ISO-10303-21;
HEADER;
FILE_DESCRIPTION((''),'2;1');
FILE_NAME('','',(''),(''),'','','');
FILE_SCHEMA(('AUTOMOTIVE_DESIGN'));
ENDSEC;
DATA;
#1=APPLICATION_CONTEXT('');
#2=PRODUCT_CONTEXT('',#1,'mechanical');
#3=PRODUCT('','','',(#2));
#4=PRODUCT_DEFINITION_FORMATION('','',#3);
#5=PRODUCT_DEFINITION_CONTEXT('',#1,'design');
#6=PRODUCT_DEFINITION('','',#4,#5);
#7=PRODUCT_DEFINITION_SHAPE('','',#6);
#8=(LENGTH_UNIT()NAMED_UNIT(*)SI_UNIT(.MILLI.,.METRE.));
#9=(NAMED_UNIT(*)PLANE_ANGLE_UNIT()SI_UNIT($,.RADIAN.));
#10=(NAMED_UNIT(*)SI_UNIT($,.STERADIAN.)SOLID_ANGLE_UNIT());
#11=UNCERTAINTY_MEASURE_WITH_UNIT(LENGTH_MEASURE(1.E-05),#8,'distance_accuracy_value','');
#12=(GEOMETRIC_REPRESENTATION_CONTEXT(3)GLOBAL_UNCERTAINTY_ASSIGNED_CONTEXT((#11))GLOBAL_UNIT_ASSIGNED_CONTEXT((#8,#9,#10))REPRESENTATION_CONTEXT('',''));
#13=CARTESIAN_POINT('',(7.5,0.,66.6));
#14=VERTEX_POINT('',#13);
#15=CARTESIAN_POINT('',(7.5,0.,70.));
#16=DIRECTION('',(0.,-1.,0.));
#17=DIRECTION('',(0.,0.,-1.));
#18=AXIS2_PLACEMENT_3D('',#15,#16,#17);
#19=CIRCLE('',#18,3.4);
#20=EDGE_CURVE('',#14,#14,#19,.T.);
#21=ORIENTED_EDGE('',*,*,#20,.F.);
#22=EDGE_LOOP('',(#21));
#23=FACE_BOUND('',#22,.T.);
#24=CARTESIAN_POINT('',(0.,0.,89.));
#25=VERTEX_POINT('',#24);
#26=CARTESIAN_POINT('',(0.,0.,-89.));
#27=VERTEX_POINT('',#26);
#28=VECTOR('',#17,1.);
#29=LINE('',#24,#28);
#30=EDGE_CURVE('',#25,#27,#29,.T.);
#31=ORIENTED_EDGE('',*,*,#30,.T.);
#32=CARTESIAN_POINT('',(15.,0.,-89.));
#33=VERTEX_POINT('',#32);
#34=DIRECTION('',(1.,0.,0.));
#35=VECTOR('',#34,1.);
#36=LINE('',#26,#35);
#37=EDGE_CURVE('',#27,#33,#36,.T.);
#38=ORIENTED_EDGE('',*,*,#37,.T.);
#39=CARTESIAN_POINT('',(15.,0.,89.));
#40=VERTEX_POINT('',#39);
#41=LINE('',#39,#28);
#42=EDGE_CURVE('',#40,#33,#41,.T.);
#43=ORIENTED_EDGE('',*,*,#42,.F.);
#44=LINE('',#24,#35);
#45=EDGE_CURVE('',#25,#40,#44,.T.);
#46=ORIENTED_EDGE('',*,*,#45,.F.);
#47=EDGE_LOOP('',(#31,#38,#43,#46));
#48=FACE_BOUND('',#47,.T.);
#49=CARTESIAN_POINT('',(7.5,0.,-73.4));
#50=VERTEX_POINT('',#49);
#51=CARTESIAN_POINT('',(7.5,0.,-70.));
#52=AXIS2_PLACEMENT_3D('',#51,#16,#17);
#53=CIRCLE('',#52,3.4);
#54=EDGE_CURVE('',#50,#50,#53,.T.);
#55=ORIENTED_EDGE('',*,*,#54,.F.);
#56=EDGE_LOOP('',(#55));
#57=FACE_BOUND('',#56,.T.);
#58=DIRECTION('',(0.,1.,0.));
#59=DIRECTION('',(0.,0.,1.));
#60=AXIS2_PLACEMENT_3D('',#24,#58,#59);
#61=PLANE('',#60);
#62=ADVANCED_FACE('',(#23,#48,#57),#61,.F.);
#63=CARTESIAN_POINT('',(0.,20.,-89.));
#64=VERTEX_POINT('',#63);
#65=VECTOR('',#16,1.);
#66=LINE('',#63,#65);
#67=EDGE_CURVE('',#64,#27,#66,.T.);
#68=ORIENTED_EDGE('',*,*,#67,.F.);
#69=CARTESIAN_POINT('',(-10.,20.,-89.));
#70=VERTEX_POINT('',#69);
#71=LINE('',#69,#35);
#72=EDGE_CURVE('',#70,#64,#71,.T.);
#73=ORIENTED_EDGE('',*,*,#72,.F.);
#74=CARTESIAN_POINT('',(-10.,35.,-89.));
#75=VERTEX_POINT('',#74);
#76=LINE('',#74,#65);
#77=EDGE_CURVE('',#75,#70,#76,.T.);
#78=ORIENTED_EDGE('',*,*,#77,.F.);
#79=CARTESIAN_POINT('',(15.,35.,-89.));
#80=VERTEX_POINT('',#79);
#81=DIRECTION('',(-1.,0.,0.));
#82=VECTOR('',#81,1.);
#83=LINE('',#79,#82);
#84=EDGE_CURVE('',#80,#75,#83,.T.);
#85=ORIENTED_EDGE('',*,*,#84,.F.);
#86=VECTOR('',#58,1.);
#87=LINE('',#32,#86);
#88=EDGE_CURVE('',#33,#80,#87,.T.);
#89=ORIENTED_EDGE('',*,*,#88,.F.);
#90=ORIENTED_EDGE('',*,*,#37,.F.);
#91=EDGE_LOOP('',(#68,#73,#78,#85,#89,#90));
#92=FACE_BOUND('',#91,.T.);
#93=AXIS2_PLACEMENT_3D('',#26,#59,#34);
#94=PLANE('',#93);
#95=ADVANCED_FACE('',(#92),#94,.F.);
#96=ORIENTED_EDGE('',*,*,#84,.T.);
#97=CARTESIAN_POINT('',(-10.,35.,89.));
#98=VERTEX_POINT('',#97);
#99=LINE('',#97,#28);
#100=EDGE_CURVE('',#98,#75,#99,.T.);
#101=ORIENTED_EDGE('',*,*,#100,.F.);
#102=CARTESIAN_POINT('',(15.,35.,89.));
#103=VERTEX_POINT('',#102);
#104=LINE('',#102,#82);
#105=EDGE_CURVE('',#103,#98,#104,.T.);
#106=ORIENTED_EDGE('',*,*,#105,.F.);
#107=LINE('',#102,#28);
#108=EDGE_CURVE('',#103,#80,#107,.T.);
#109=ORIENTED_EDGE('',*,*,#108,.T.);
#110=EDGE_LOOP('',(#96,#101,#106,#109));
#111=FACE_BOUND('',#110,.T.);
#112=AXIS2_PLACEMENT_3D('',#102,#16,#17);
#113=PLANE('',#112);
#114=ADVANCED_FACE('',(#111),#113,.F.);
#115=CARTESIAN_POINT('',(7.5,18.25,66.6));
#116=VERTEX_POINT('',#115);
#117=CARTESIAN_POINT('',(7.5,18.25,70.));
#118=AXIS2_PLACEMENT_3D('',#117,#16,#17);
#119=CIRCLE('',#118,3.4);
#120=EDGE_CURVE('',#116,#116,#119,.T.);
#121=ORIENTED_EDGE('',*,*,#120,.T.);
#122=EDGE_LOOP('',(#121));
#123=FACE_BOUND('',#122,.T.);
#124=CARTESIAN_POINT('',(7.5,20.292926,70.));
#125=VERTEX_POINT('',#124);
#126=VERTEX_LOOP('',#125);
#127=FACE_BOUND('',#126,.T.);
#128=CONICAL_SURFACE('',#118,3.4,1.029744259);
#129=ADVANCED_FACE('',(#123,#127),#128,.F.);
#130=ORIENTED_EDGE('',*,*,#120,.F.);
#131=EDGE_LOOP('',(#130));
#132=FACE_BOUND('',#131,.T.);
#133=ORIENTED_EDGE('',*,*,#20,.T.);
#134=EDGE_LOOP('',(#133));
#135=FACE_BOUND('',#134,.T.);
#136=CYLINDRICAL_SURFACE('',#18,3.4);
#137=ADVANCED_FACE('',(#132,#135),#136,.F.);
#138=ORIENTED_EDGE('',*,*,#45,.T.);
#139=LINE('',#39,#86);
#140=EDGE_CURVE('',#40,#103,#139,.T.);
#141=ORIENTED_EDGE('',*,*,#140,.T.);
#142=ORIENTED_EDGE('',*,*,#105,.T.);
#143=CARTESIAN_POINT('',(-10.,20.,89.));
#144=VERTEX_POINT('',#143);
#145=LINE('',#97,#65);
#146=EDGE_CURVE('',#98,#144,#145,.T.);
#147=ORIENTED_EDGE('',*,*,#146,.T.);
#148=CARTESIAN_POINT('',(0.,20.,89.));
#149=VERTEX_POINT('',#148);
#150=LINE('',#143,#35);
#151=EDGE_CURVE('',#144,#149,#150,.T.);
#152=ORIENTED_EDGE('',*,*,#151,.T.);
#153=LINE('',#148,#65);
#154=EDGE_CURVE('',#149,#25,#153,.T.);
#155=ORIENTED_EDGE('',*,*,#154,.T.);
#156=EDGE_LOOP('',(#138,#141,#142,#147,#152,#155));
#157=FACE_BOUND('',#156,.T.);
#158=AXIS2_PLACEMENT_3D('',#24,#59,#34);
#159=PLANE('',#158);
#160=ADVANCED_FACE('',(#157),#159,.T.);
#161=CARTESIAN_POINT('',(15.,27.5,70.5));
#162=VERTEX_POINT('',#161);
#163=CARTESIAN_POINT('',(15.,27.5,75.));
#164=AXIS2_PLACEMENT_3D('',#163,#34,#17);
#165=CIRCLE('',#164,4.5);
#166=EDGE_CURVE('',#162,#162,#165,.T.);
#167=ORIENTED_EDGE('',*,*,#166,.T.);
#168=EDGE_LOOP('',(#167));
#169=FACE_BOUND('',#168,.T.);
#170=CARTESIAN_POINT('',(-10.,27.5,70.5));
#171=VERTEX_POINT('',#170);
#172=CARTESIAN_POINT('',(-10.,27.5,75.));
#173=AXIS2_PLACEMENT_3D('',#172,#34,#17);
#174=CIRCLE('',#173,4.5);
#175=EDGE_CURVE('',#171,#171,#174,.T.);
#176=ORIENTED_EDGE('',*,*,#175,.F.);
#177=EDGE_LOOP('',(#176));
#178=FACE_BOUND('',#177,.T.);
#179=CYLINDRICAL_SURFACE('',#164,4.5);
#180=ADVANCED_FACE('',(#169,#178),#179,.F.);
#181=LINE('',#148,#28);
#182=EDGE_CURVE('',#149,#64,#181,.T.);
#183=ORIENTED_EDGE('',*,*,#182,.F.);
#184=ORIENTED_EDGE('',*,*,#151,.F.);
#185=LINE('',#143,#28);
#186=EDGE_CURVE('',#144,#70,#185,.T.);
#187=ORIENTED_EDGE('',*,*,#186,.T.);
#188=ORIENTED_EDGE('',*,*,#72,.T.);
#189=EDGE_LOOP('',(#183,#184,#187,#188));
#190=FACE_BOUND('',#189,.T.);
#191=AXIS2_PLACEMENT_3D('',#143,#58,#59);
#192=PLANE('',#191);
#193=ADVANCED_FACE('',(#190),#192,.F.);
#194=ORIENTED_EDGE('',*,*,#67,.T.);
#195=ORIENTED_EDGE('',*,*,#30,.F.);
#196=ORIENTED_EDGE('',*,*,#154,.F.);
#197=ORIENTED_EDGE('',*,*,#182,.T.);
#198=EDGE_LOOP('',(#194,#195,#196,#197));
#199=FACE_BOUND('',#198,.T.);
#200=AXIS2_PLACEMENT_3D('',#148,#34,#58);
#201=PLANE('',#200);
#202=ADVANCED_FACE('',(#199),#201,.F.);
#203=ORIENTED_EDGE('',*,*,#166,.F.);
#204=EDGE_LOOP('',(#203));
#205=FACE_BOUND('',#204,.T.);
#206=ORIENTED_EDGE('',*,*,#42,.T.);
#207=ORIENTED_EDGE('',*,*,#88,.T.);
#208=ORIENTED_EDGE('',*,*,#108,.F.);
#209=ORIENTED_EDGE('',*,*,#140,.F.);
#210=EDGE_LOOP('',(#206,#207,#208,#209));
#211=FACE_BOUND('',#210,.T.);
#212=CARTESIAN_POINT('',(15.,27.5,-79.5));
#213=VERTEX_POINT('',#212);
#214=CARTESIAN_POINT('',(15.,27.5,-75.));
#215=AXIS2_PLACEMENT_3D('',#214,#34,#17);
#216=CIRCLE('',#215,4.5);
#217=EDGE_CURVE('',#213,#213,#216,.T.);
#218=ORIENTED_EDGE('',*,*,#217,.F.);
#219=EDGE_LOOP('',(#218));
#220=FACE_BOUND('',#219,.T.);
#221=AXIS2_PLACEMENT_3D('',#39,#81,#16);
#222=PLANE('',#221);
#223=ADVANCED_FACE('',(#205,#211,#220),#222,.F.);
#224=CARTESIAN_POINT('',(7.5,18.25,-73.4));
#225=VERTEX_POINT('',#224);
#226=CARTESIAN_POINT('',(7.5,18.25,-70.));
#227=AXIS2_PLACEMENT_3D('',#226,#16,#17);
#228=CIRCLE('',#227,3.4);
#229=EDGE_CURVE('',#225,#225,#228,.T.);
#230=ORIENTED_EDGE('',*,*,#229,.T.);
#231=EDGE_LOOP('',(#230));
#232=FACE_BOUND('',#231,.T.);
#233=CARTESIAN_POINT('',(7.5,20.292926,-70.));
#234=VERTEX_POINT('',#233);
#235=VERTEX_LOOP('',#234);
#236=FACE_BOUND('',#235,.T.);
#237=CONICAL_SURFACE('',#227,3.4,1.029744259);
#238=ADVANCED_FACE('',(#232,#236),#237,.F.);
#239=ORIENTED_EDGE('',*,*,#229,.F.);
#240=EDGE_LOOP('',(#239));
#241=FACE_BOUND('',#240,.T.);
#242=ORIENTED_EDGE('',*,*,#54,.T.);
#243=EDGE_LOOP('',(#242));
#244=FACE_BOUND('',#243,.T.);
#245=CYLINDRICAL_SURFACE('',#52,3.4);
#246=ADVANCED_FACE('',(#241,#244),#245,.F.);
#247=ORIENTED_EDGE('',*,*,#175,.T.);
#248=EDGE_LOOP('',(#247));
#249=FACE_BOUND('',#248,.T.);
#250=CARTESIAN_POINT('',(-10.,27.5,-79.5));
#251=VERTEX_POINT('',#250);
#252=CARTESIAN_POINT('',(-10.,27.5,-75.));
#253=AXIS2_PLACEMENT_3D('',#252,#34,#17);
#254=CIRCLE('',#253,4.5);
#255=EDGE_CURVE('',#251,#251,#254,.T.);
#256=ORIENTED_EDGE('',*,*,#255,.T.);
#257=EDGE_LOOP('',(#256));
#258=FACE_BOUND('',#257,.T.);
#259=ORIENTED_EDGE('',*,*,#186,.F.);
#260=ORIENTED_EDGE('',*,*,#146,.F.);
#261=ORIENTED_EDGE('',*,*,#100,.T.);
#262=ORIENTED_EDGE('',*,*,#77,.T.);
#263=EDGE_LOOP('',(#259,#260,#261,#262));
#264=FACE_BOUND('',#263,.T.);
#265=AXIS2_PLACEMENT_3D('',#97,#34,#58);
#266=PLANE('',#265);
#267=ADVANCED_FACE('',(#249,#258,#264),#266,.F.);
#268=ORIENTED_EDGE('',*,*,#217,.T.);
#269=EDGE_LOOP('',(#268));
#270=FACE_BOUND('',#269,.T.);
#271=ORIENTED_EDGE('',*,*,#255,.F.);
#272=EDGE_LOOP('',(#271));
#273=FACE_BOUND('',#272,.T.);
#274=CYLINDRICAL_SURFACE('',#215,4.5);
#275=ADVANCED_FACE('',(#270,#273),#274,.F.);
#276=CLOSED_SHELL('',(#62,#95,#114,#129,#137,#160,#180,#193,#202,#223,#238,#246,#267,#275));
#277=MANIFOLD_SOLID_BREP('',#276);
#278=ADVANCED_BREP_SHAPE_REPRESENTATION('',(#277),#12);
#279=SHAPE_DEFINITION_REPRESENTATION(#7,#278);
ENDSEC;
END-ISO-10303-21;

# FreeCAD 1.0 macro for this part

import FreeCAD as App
import Part
import Sketcher

V = App.Vector
Q = App.Units.Quantity


def add_polygon(sketch, points):
    """Adds a closed chain of lines whose ends are joined by coincident constraints."""
    first, n = sketch.GeometryCount, len(points)
    for a, b in zip(points, points[1:] + points[:1]):
        sketch.addGeometry(Part.LineSegment(App.Vector(*a, 0), App.Vector(*b, 0)), False)
    for i in range(n):
        sketch.addConstraint(Sketcher.Constraint("Coincident", first + i, 2, first + (i + 1) % n, 1))

doc = App.newDocument("Part")
body = doc.addObject("PartDesign::Body", "Body")

# Sketch on XY plane
sketch1 = body.newObject("Sketcher::SketchObject", "Sketch")
sketch1.AttachmentSupport = (doc.getObject("XY_Plane"), [""])
sketch1.MapMode = "FlatFace"
add_polygon(sketch1, [(0, 0), (15, 0), (15, 35), (-10, 35), (-10, 20), (0, 20)])  # lines 0-5
sketch1.addConstraint([
    Sketcher.Constraint("Horizontal", 0),
    Sketcher.Constraint("Vertical", 1),
    Sketcher.Constraint("Horizontal", 2),
    Sketcher.Constraint("Vertical", 3),
    Sketcher.Constraint("Horizontal", 4),
    Sketcher.Constraint("Vertical", 5),
    Sketcher.Constraint("Coincident", 5, 2, -1, 1),
    Sketcher.Constraint("Equal", 0, 3),
    Sketcher.Constraint("DistanceX", 0, 1, 0, 2, Q("15 mm")),
    Sketcher.Constraint("DistanceX", 2, 2, 2, 1, Q("25 mm")),
    Sketcher.Constraint("DistanceY", 1, 1, 1, 2, Q("35 mm")),
])
pad1 = body.newObject("PartDesign::Pad", "Pad")
pad1.Profile = sketch1
pad1.Length = 178
pad1.Midplane = True

# Sketch on XZ plane
sketch2 = body.newObject("Sketcher::SketchObject", "Sketch001")
sketch2.AttachmentSupport = (doc.getObject("XZ_Plane"), [""])
sketch2.MapMode = "FlatFace"
sketch2.addGeometry([
    Part.Circle(V(7.5, 70, 0), V(0, 0, 1), 3.4),
    Part.Circle(V(7.5, -70, 0), V(0, 0, 1), 3.4),
], False)
sketch2.addConstraint([
    Sketcher.Constraint("Equal", 0, 1),
    Sketcher.Constraint("Symmetric", 0, 3, 1, 3, -1),
    Sketcher.Constraint("Diameter", 0, Q("6.8 mm")),
    Sketcher.Constraint("DistanceY", -1, 1, 0, 3, Q("70 mm")),
    Sketcher.Constraint("DistanceX", -1, 1, 0, 3, Q("7.5 mm")),
])
doc.recompute()
hole = body.newObject("PartDesign::Hole", "Hole")
hole.Profile = sketch2
hole.ThreadType = "None"
hole.Diameter = 6.8
hole.DepthType = "Dimension"
hole.Depth = 18.25
hole.DrillPoint = "Angled"
hole.DrillPointAngle = 118

# Sketch on YZ plane
sketch3 = body.newObject("Sketcher::SketchObject", "Sketch002")
sketch3.AttachmentSupport = (doc.getObject("YZ_Plane"), [""])
sketch3.MapMode = "FlatFace"
sketch3.AttachmentOffset = App.Placement(V(0, 0, 15), App.Rotation())
sketch3.addGeometry([
    Part.Circle(V(27.5, 75, 0), V(0, 0, 1), 4.5),
    Part.Circle(V(27.5, -75, 0), V(0, 0, 1), 4.5),
], False)
sketch3.addConstraint([
    Sketcher.Constraint("Equal", 0, 1),
    Sketcher.Constraint("Symmetric", 0, 3, 1, 3, -1),
    Sketcher.Constraint("Diameter", 0, Q("9 mm")),
    Sketcher.Constraint("DistanceY", -1, 1, 0, 3, Q("75 mm")),
    Sketcher.Constraint("DistanceX", -1, 1, 0, 3, Q("27.5 mm")),
])
doc.recompute()
hole2 = body.newObject("PartDesign::Hole", "Hole001")
hole2.Profile = sketch3
hole2.ThreadType = "None"
hole2.Diameter = 9
hole2.DepthType = "ThroughAll"

doc.recompute()
